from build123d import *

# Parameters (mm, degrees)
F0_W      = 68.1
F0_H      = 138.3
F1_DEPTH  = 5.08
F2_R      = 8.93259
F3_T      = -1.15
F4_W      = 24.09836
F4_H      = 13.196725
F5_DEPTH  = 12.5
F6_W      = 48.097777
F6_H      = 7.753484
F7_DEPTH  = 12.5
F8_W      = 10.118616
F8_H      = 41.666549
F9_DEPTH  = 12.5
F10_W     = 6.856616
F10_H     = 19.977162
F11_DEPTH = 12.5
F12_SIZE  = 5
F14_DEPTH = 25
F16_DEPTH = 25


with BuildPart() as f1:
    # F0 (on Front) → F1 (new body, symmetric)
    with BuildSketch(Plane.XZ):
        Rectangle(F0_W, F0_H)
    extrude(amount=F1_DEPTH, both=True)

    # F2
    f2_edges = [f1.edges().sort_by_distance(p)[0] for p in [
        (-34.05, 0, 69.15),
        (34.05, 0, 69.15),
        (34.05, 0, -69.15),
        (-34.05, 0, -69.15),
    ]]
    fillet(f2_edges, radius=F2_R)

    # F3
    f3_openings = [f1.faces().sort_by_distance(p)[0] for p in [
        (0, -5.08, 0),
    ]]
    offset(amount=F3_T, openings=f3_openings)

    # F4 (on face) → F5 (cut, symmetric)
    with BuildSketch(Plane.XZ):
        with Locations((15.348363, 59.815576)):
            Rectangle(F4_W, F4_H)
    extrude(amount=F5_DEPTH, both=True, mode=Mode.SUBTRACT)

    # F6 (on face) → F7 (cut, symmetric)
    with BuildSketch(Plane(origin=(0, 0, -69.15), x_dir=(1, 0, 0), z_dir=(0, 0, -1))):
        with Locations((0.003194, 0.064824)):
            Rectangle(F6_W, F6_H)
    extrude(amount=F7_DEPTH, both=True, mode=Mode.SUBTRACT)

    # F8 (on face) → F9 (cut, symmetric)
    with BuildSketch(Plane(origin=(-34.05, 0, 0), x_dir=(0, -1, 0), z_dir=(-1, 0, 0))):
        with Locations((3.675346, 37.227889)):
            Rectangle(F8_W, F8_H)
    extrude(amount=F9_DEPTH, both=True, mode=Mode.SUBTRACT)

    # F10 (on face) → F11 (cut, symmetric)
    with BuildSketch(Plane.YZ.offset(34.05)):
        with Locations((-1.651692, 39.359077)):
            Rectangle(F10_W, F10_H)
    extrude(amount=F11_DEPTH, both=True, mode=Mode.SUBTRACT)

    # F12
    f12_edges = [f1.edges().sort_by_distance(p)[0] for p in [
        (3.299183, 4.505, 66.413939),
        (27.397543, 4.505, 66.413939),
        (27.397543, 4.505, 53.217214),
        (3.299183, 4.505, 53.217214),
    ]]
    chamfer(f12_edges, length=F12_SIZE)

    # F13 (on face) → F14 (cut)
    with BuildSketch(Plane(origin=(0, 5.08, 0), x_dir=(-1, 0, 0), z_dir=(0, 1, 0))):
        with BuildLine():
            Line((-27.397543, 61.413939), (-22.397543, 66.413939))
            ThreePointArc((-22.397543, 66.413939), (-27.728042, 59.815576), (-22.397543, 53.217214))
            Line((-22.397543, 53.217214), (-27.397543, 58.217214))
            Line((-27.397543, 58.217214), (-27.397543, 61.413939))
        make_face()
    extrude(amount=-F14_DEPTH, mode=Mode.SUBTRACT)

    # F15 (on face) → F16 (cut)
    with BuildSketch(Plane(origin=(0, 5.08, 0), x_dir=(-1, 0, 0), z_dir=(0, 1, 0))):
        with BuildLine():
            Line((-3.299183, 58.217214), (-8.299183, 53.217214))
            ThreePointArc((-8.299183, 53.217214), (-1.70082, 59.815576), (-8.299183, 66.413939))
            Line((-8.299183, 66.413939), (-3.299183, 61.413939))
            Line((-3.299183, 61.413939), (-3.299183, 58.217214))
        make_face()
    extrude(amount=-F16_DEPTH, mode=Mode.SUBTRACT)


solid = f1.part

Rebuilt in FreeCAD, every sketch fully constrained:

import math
import FreeCAD as App
import Part
import Sketcher
from FreeCAD import Vector


def edges_at(feature, points):
    """Names of the edges that pass closest to the given points."""
    edges = feature.Shape.Edges
    near = lambda p: min(range(len(edges)), key=lambda i: edges[i].distToShape(Part.Vertex(*p))[0])
    return sorted({f"Edge{near(p) + 1}" for p in points})


def faces_at(feature, points):
    """Names of the faces that lie closest to the given points."""
    faces = feature.Shape.Faces
    near = lambda p: min(range(len(faces)), key=lambda i: faces[i].distToShape(Part.Vertex(*p))[0])
    return sorted({f"Face{near(p) + 1}" for p in points})

doc = App.newDocument("Part")
params = doc.addObject("Spreadsheet::Sheet", "Params")
for row, (alias, value) in enumerate([
    ("sketch1_width", "68.1 mm"),
    ("sketch1_height", "138.3 mm"),
    ("pad1_length", "10.16 mm"),
    ("fillet_radius", "8.93259 mm"),
    ("thickness_wall", "1.15 mm"),
    ("pocket1_length", "25 mm"),
    ("pocket2_length", "25 mm"),
    ("pocket3_length", "25 mm"),
    ("pocket4_length", "25 mm"),
    ("chamfer_size", "5 mm"),
    ("pocket5_length", "25 mm"),
    ("pocket6_length", "25 mm"),
], start=1):
    params.set(f"A{row}", alias)
    params.set(f"B{row}", "=" + value)
    params.setAlias(f"B{row}", alias)

body = doc.addObject("PartDesign::Body", "Body")

sketch1 = body.newObject("Sketcher::SketchObject", "Sketch")
sketch1.AttachmentSupport = (doc.getObject("XZ_Plane"), [""])
sketch1.MapMode = "FlatFace"
sketch1.addGeometry([
    Part.LineSegment(Vector(-34, 69, 0), Vector(-34, -69, 0)),
    Part.LineSegment(Vector(-34, -69, 0), Vector(34, -69, 0)),
    Part.LineSegment(Vector(34, -69, 0), Vector(34, 69, 0)),
    Part.LineSegment(Vector(34, 69, 0), Vector(-34, 69, 0)),
], False)
sketch1.addConstraint([
    Sketcher.Constraint("Coincident", 0, 2, 1, 1),
    Sketcher.Constraint("Coincident", 1, 2, 2, 1),
    Sketcher.Constraint("Coincident", 2, 2, 3, 1),
    Sketcher.Constraint("Coincident", 3, 2, 0, 1),
    Sketcher.Constraint("Vertical", 0),
    Sketcher.Constraint("Horizontal", 1),
    Sketcher.Constraint("Vertical", 2),
    Sketcher.Constraint("Horizontal", 3),
    Sketcher.Constraint("Symmetric", 0, 2, 2, 2, -1, 1),
    Sketcher.Constraint("DistanceX", 1, 1, 1, 2, 68.1),
    Sketcher.Constraint("DistanceY", 0, 2, 0, 1, 138.3),
])
sketch1.setExpression("Constraints[9]", "Params.sketch1_width")
sketch1.setExpression("Constraints[10]", "Params.sketch1_height")
pad1 = body.newObject("PartDesign::Pad", "Pad")
pad1.Profile = sketch1
pad1.setExpression("Length", "Params.pad1_length")
pad1.Midplane = True
doc.recompute()

fillet = body.newObject("PartDesign::Fillet", "Fillet")
fillet.Base = (pad1, edges_at(pad1, [
    (-34.05, 0, 69.15),
    (34.05, 0, 69.15),
    (34.05, 0, -69.15),
    (-34.05, 0, -69.15),
]))
fillet.setExpression("Radius", "Params.fillet_radius")
doc.recompute()

thickness = body.newObject("PartDesign::Thickness", "Thickness")
thickness.Base = (fillet, faces_at(fillet, [(0, -5.08, 0)]))
thickness.setExpression("Value", "Params.thickness_wall")
thickness.Reversed = True
thickness.Join = "Arc"

sketch2 = body.newObject("Sketcher::SketchObject", "Sketch001")
sketch2.AttachmentSupport = (doc.getObject("XZ_Plane"), [""])
sketch2.MapMode = "FlatFace"
sketch2.addGeometry([
    Part.LineSegment(Vector(3, 66, 0), Vector(3, 53, 0)),
    Part.LineSegment(Vector(3, 53, 0), Vector(27, 53, 0)),
    Part.LineSegment(Vector(27, 53, 0), Vector(27, 66, 0)),
    Part.LineSegment(Vector(27, 66, 0), Vector(3, 66, 0)),
], False)
sketch2.addConstraint([
    Sketcher.Constraint("Coincident", 0, 2, 1, 1),
    Sketcher.Constraint("Coincident", 1, 2, 2, 1),
    Sketcher.Constraint("Coincident", 2, 2, 3, 1),
    Sketcher.Constraint("Coincident", 3, 2, 0, 1),
    Sketcher.Constraint("Vertical", 0),
    Sketcher.Constraint("Horizontal", 1),
    Sketcher.Constraint("Vertical", 2),
    Sketcher.Constraint("Horizontal", 3),
    Sketcher.Constraint("DistanceX", 1, 1, 1, 2, 24.09836),
    Sketcher.Constraint("DistanceY", 0, 2, 0, 1, 13.196725),
    Sketcher.Constraint("DistanceY", -1, 1, 2, 2, 66.413939),
    Sketcher.Constraint("DistanceX", -1, 1, 0, 2, 3.299183),
])
pocket1 = body.newObject("PartDesign::Pocket", "Pocket")
pocket1.Profile = sketch2
pocket1.setExpression("Length", "Params.pocket1_length")
pocket1.Midplane = True

sketch3 = body.newObject("Sketcher::SketchObject", "Sketch002")
sketch3.AttachmentSupport = (doc.getObject("XY_Plane"), [""])
sketch3.MapMode = "FlatFace"
sketch3.AttachmentOffset = App.Placement(Vector(0, 0, -69.15), App.Rotation())
sketch3.addGeometry([
    Part.LineSegment(Vector(-24, -4, 0), Vector(-24, 4, 0)),
    Part.LineSegment(Vector(-24, 4, 0), Vector(24, 4, 0)),
    Part.LineSegment(Vector(24, 4, 0), Vector(24, -4, 0)),
    Part.LineSegment(Vector(24, -4, 0), Vector(-24, -4, 0)),
], False)
sketch3.addConstraint([
    Sketcher.Constraint("Coincident", 0, 2, 1, 1),
    Sketcher.Constraint("Coincident", 1, 2, 2, 1),
    Sketcher.Constraint("Coincident", 2, 2, 3, 1),
    Sketcher.Constraint("Coincident", 3, 2, 0, 1),
    Sketcher.Constraint("Vertical", 0),
    Sketcher.Constraint("Horizontal", 1),
    Sketcher.Constraint("Vertical", 2),
    Sketcher.Constraint("Horizontal", 3),
    Sketcher.Constraint("DistanceX", 1, 1, 1, 2, 48.097777),
    Sketcher.Constraint("DistanceY", 0, 1, 0, 2, 7.753484),
    Sketcher.Constraint("DistanceX", 0, 2, -1, 1, 24.045694),
    Sketcher.Constraint("DistanceY", -1, 1, 0, 2, 3.811918),
])
pocket2 = body.newObject("PartDesign::Pocket", "Pocket001")
pocket2.Profile = sketch3
pocket2.setExpression("Length", "Params.pocket2_length")
pocket2.Midplane = True

sketch4 = body.newObject("Sketcher::SketchObject", "Sketch003")
sketch4.AttachmentSupport = (doc.getObject("YZ_Plane"), [""])
sketch4.MapMode = "FlatFace"
sketch4.AttachmentOffset = App.Placement(Vector(0, 0, -34.05), App.Rotation())
sketch4.addGeometry([
    Part.LineSegment(Vector(1, 58, 0), Vector(1, 16, 0)),
    Part.LineSegment(Vector(1, 16, 0), Vector(-9, 16, 0)),
    Part.LineSegment(Vector(-9, 16, 0), Vector(-9, 58, 0)),
    Part.LineSegment(Vector(-9, 58, 0), Vector(1, 58, 0)),
], False)
sketch4.addConstraint([
    Sketcher.Constraint("Coincident", 0, 2, 1, 1),
    Sketcher.Constraint("Coincident", 1, 2, 2, 1),
    Sketcher.Constraint("Coincident", 2, 2, 3, 1),
    Sketcher.Constraint("Coincident", 3, 2, 0, 1),
    Sketcher.Constraint("Vertical", 0),
    Sketcher.Constraint("Horizontal", 1),
    Sketcher.Constraint("Vertical", 2),
    Sketcher.Constraint("Horizontal", 3),
    Sketcher.Constraint("DistanceY", 0, 2, 0, 1, 41.666549),
    Sketcher.Constraint("DistanceX", 1, 2, 1, 1, 10.118616),
    Sketcher.Constraint("DistanceX", -1, 1, 0, 2, 1.383962),
    Sketcher.Constraint("DistanceY", -1, 1, 0, 2, 16.394614),
])
pocket3 = body.newObject("PartDesign::Pocket", "Pocket002")
pocket3.Profile = sketch4
pocket3.setExpression("Length", "Params.pocket3_length")
pocket3.Midplane = True

sketch5 = body.newObject("Sketcher::SketchObject", "Sketch004")
sketch5.AttachmentSupport = (doc.getObject("YZ_Plane"), [""])
sketch5.MapMode = "FlatFace"
sketch5.AttachmentOffset = App.Placement(Vector(0, 0, 34.05), App.Rotation())
sketch5.addGeometry([
    Part.LineSegment(Vector(-5, 49, 0), Vector(-5, 29, 0)),
    Part.LineSegment(Vector(-5, 29, 0), Vector(2, 29, 0)),
    Part.LineSegment(Vector(2, 29, 0), Vector(2, 49, 0)),
    Part.LineSegment(Vector(2, 49, 0), Vector(-5, 49, 0)),
], False)
sketch5.addConstraint([
    Sketcher.Constraint("Coincident", 0, 2, 1, 1),
    Sketcher.Constraint("Coincident", 1, 2, 2, 1),
    Sketcher.Constraint("Coincident", 2, 2, 3, 1),
    Sketcher.Constraint("Coincident", 3, 2, 0, 1),
    Sketcher.Constraint("Vertical", 0),
    Sketcher.Constraint("Horizontal", 1),
    Sketcher.Constraint("Vertical", 2),
    Sketcher.Constraint("Horizontal", 3),
    Sketcher.Constraint("DistanceX", 0, 2, -1, 1, 5.08),
    Sketcher.Constraint("DistanceX", 1, 1, 1, 2, 6.856616),
    Sketcher.Constraint("DistanceY", 0, 2, 0, 1, 19.977162),
    Sketcher.Constraint("DistanceY", -1, 1, 2, 2, 49.347658),
])
pocket4 = body.newObject("PartDesign::Pocket", "Pocket003")
pocket4.Profile = sketch5
pocket4.setExpression("Length", "Params.pocket4_length")
pocket4.Midplane = True
doc.recompute()

chamfer = body.newObject("PartDesign::Chamfer", "Chamfer")
chamfer.Base = (pocket4, edges_at(pocket4, [
    (3.299, 4.505, 66.414),
    (27.398, 4.505, 66.414),
    (27.398, 4.505, 53.217),
    (3.299, 4.505, 53.217),
]))
chamfer.setExpression("Size", "Params.chamfer_size")

sketch6 = body.newObject("Sketcher::SketchObject", "Sketch005")
sketch6.AttachmentSupport = (doc.getObject("XZ_Plane"), [""])
sketch6.MapMode = "FlatFace"
sketch6.AttachmentOffset = App.Placement(Vector(0, 0, -5.08), App.Rotation())
sketch6.addGeometry([
    Part.LineSegment(Vector(27.4, 61.4, 0), Vector(22.4, 66.4, 0)),
    Part.ArcOfCircle(Part.Circle(Vector(21, 59.8, 0), Vector(0, 0, 1), 6.7), math.radians(-78), math.radians(78)),
    Part.LineSegment(Vector(22.4, 53.2, 0), Vector(27.4, 58.2, 0)),
    Part.LineSegment(Vector(27.4, 58.2, 0), Vector(27.4, 61.4, 0)),
], False)
sketch6.addConstraint([
    Sketcher.Constraint("Coincident", 0, 2, 1, 2),
    Sketcher.Constraint("Coincident", 1, 1, 2, 1),
    Sketcher.Constraint("Coincident", 2, 2, 3, 1),
    Sketcher.Constraint("Coincident", 3, 2, 0, 1),
    Sketcher.Constraint("Vertical", 3),
    Sketcher.Constraint("Perpendicular", 0, 2),
    Sketcher.Constraint("Vertical", 0, 2, 1, 1),
    Sketcher.Constraint("Equal", 0, 2),
    Sketcher.Constraint("DistanceX", 1, 1, 2, 2, 5.0),
    Sketcher.Constraint("Radius", 1, 6.749144),
    Sketcher.Constraint("DistanceX", -1, 1, 1, 3, 20.978898),
    Sketcher.Constraint("DistanceY", 3, 1, 3, 2, 3.196725),
    Sketcher.Constraint("DistanceY", -1, 1, 0, 2, 66.413939),
])
pocket5 = body.newObject("PartDesign::Pocket", "Pocket004")
pocket5.Profile = sketch6
pocket5.setExpression("Length", "Params.pocket5_length")
pocket5.Reversed = True

sketch7 = body.newObject("Sketcher::SketchObject", "Sketch006")
sketch7.AttachmentSupport = (doc.getObject("XZ_Plane"), [""])
sketch7.MapMode = "FlatFace"
sketch7.AttachmentOffset = App.Placement(Vector(0, 0, -5.08), App.Rotation())
sketch7.addGeometry([
    Part.LineSegment(Vector(3.3, 58.2, 0), Vector(8.3, 53.2, 0)),
    Part.ArcOfCircle(Part.Circle(Vector(8.3, 59.8, 0), Vector(0, 0, 1), 6.6), math.radians(90), math.radians(270)),
    Part.LineSegment(Vector(8.3, 66.4, 0), Vector(3.3, 61.4, 0)),
    Part.LineSegment(Vector(3.3, 61.4, 0), Vector(3.3, 58.2, 0)),
], False)
sketch7.addConstraint([
    Sketcher.Constraint("Coincident", 0, 2, 1, 2),
    Sketcher.Constraint("Coincident", 1, 1, 2, 1),
    Sketcher.Constraint("Coincident", 2, 2, 3, 1),
    Sketcher.Constraint("Coincident", 3, 2, 0, 1),
    Sketcher.Constraint("Vertical", 3),
    Sketcher.Constraint("Perpendicular", 0, 2),
    Sketcher.Constraint("Vertical", 1, 3, 0, 2),
    Sketcher.Constraint("Vertical", 0, 2, 1, 1),
    Sketcher.Constraint("Equal", 0, 2),
    Sketcher.Constraint("DistanceX", 2, 2, 1, 3, 5.0),
    Sketcher.Constraint("Radius", 1, 6.598363),
    Sketcher.Constraint("DistanceY", -1, 1, 1, 1, 66.413939),
    Sketcher.Constraint("DistanceX", -1, 1, 1, 3, 8.299183),
])
pocket6 = body.newObject("PartDesign::Pocket", "Pocket005")
pocket6.Profile = sketch7
pocket6.setExpression("Length", "Params.pocket6_length")
pocket6.Reversed = True

doc.recompute()
